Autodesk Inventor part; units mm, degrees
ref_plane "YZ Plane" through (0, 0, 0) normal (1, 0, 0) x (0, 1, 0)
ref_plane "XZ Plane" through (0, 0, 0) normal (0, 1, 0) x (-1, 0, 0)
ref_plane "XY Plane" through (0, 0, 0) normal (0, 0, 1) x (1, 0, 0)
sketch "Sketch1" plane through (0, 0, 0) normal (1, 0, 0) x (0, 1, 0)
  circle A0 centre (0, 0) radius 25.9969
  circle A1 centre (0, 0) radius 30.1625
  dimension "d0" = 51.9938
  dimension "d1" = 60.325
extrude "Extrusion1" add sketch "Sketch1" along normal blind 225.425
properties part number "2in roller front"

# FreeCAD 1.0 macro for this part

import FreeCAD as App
import Part
import Sketcher

V = App.Vector
Q = App.Units.Quantity

doc = App.newDocument("Part")
params = doc.addObject("Spreadsheet::Sheet", "Params")
for row, (alias, value) in enumerate([
    ("sketch1_diameter", "2.375 in"),
    ("sketch1_diameter2", "2.047 in"),
    ("pad1_length", "8.875 in"),
], start=1):
    params.set(f"A{row}", alias)
    params.set(f"B{row}", "=" + value)
    params.setAlias(f"B{row}", alias)

body = doc.addObject("PartDesign::Body", "Body")

sketch1 = body.newObject("Sketcher::SketchObject", "Sketch")
sketch1.AttachmentSupport = (doc.getObject("YZ_Plane"), [""])
sketch1.MapMode = "FlatFace"
sketch1.addGeometry([
    Part.Circle(V(0, 0, 0), V(0, 0, 1), 30),
    Part.Circle(V(0, 0, 0), V(0, 0, 1), 26),
], False)
sketch1.addConstraint([
    Sketcher.Constraint("Coincident", 0, 3, -1, 1),
    Sketcher.Constraint("Coincident", 1, 3, -1, 1),
    Sketcher.Constraint("Diameter", 0, Q("2.375 in")),
    Sketcher.Constraint("Diameter", 1, Q("2.047 in")),
])
sketch1.setExpression("Constraints[2]", "Params.sketch1_diameter")
sketch1.setExpression("Constraints[3]", "Params.sketch1_diameter2")
pad1 = body.newObject("PartDesign::Pad", "Pad")
pad1.Profile = sketch1
pad1.setExpression("Length", "Params.pad1_length")

doc.recompute()
